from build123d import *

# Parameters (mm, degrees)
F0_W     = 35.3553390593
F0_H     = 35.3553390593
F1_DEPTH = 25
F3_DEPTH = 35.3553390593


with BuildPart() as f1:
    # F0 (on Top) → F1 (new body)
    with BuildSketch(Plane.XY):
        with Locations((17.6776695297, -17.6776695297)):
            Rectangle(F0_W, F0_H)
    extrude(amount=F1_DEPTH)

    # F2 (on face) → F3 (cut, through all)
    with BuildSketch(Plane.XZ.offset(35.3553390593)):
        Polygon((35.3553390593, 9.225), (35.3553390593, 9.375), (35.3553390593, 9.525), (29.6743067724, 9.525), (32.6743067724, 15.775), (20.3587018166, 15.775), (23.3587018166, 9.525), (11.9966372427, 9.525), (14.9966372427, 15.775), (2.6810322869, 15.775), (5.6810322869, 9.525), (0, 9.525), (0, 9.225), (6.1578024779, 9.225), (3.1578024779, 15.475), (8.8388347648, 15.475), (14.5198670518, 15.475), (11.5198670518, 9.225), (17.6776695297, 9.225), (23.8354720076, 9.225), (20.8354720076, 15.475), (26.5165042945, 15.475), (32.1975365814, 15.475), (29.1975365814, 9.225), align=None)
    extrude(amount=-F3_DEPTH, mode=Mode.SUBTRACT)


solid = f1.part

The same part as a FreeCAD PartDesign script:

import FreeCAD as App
import Part
import Sketcher
Q = App.Units.Quantity


def add_polygon(sketch, points):
    """Adds a closed chain of lines whose ends are joined by coincident constraints."""
    first, n = sketch.GeometryCount, len(points)
    for a, b in zip(points, points[1:] + points[:1]):
        sketch.addGeometry(Part.LineSegment(App.Vector(*a, 0), App.Vector(*b, 0)), False)
    for i in range(n):
        sketch.addConstraint(Sketcher.Constraint("Coincident", first + i, 2, first + (i + 1) % n, 1))

doc = App.newDocument("Part")
params = doc.addObject("Spreadsheet::Sheet", "Params")
for row, (alias, value) in enumerate([
    ("pad1_length", "25 mm"),
    ("sketch2_height", "0.3 mm"),
], start=1):
    params.set(f"A{row}", alias)
    params.set(f"B{row}", "=" + value)
    params.setAlias(f"B{row}", alias)

body = doc.addObject("PartDesign::Body", "Body")
body.AllowCompound = True

# Sketch on XY plane
sketch1 = body.newObject("Sketcher::SketchObject", "Sketch")
sketch1.AttachmentSupport = (doc.getObject("XY_Plane"), [""])
sketch1.MapMode = "FlatFace"
add_polygon(sketch1, [(0, 0), (0, -35), (35, -35), (35, 0)])  # lines 0-3
sketch1.addConstraint([
    Sketcher.Constraint("Vertical", 0),
    Sketcher.Constraint("Horizontal", 1),
    Sketcher.Constraint("Vertical", 2),
    Sketcher.Constraint("Horizontal", 3),
    Sketcher.Constraint("Coincident", 3, 2, -1, 1),
    Sketcher.Constraint("Equal", 3, 0),
    Sketcher.Constraint("DistanceX", 1, 1, 1, 2, Q("35.355339 mm")),
])
pad1 = body.newObject("PartDesign::Pad", "Pad")
pad1.Profile = sketch1
pad1.setExpression("Length", "Params.pad1_length")

# Sketch on XZ plane
sketch2 = body.newObject("Sketcher::SketchObject", "Sketch001")
sketch2.AttachmentSupport = (doc.getObject("XZ_Plane"), [""])
sketch2.MapMode = "FlatFace"
sketch2.AttachmentOffset = App.Placement(App.Vector(0, 0, 35.355339), App.Rotation())
add_polygon(sketch2, [(35.36, 9.22), (35.36, 9.53), (29.67, 9.53), (32.67, 15.78), (20.36, 15.78), (23.36, 9.53), (12, 9.53), (15, 15.78), (2.68, 15.78), (5.68, 9.53), (0, 9.53), (0, 9.22), (6.16, 9.22), (3.16, 15.47), (14.52, 15.47), (11.52, 9.22), (23.84, 9.22), (20.84, 15.47), (32.2, 15.47), (29.2, 9.22)])  # lines 0-19
sketch2.addConstraint([
    Sketcher.Constraint("Vertical", 0),
    Sketcher.Constraint("Horizontal", 1),
    Sketcher.Constraint("Horizontal", 3),
    Sketcher.Constraint("Horizontal", 5),
    Sketcher.Constraint("Horizontal", 7),
    Sketcher.Constraint("Horizontal", 9),
    Sketcher.Constraint("Vertical", 10),
    Sketcher.Constraint("Horizontal", 11),
    Sketcher.Constraint("Horizontal", 13),
    Sketcher.Constraint("Horizontal", 15),
    Sketcher.Constraint("Horizontal", 17),
    Sketcher.Constraint("Horizontal", 19),
    Sketcher.Constraint("PointOnObject", 9, 2, -2),
    Sketcher.Constraint("Parallel", 2, 6),
    Sketcher.Constraint("Parallel", 4, 8),
    Sketcher.Constraint("Parallel", 8, 12),
    Sketcher.Constraint("Parallel", 6, 14),
    Sketcher.Constraint("Parallel", 12, 16),
    Sketcher.Constraint("Parallel", 14, 18),
    Sketcher.Constraint("Horizontal", 1, 2, 4, 2),
    Sketcher.Constraint("Horizontal", 3, 2, 6, 2),
    Sketcher.Constraint("Horizontal", 5, 2, 8, 2),
    Sketcher.Constraint("Horizontal", 11, 2, 14, 2),
    Sketcher.Constraint("Horizontal", 13, 2, 16, 2),
    Sketcher.Constraint("Horizontal", 15, 2, 18, 2),
    Sketcher.Constraint("Equal", 3, 7),
    Sketcher.Constraint("Equal", 1, 9),
    Sketcher.Constraint("Equal", 5, 13),
    Sketcher.Constraint("Equal", 7, 15),
    Sketcher.Constraint("Equal", 13, 17),
    Sketcher.Constraint("Equal", 11, 19),
    Sketcher.Constraint("Equal", 2, 4),
    Sketcher.Constraint("Equal", 8, 12),
    Sketcher.Constraint("DistanceY", 0, 1, 0, 2, Q("0.3 mm")),
    Sketcher.Constraint("DistanceX", 1, 2, 2, 2, Q("3 mm")),
    Sketcher.Constraint("DistanceY", 0, 2, 2, 2, Q("6.25 mm")),
    Sketcher.Constraint("DistanceY", -1, 1, 0, 2, Q("9.525 mm")),
    Sketcher.Constraint("DistanceX", -1, 1, 3, 2, Q("20.358702 mm")),
    Sketcher.Constraint("DistanceX", 1, 2, 1, 1, Q("5.681032 mm")),
    Sketcher.Constraint("DistanceX", 3, 2, 3, 1, Q("12.315605 mm")),
])
sketch2.setExpression("Constraints[53]", "Params.sketch2_height")
pocket1 = body.newObject("PartDesign::Pocket", "Pocket")
pocket1.Profile = sketch2
pocket1.Type = "ThroughAll"

doc.recompute()
